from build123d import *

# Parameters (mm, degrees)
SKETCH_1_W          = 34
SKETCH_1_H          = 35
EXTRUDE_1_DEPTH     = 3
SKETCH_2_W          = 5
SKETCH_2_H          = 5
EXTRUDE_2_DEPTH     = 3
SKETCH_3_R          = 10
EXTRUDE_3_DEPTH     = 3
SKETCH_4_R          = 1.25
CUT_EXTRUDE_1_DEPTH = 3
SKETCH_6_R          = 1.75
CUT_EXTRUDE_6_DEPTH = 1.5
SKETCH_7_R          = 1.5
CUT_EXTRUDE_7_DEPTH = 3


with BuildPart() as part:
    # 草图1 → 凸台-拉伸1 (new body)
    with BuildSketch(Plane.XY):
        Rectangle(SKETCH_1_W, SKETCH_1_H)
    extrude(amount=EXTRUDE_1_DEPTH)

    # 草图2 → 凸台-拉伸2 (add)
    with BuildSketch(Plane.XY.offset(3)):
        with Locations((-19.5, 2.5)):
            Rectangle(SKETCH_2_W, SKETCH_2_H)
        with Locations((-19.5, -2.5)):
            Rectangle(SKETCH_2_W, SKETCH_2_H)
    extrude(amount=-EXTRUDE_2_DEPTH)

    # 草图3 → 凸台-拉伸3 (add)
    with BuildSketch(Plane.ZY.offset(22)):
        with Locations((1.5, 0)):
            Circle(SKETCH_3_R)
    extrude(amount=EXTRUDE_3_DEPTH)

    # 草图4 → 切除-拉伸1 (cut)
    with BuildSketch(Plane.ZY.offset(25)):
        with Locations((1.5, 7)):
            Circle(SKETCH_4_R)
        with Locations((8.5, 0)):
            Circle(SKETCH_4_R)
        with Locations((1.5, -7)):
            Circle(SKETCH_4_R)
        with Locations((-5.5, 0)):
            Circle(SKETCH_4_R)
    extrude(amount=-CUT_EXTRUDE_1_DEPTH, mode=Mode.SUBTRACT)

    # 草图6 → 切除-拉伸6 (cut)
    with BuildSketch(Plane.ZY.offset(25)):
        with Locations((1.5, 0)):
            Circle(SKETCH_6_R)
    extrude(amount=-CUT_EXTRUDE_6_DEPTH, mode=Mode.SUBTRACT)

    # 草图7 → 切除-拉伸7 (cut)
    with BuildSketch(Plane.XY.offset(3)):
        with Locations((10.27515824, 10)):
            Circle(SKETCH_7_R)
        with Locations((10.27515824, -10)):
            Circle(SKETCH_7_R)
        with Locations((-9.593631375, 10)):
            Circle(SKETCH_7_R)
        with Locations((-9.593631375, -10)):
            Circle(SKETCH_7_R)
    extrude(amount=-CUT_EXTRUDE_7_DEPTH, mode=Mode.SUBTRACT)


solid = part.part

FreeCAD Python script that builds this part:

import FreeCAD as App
import Part
import Sketcher


def add_polygon(sketch, points):
    """Adds a closed chain of lines whose ends are joined by coincident constraints."""
    first, n = sketch.GeometryCount, len(points)
    for a, b in zip(points, points[1:] + points[:1]):
        sketch.addGeometry(Part.LineSegment(App.Vector(*a, 0), App.Vector(*b, 0)), False)
    for i in range(n):
        sketch.addConstraint(Sketcher.Constraint("Coincident", first + i, 2, first + (i + 1) % n, 1))

doc = App.newDocument("Part")
body = doc.addObject("PartDesign::Body", "Body")

# Sketch on XY plane
sketch1 = doc.addObject("Sketcher::SketchObject", "Sketch")
body.addObject(sketch1)
sketch1.AttachmentSupport = (doc.XY_Plane, [""])
sketch1.MapMode = "FlatFace"
add_polygon(sketch1, [(-17, 18), (-17, -18), (17, -18), (17, 18)])  # lines 0-3
sketch1.addConstraint(Sketcher.Constraint("Vertical", 0))
sketch1.addConstraint(Sketcher.Constraint("Horizontal", 1))
sketch1.addConstraint(Sketcher.Constraint("Vertical", 2))
sketch1.addConstraint(Sketcher.Constraint("Horizontal", 3))
sketch1.addConstraint(Sketcher.Constraint("Symmetric", 0, 2, 2, 2, -1, 1))
sketch1.addConstraint(Sketcher.Constraint("DistanceX", 1, 1, 1, 2, 34.0))
sketch1.addConstraint(Sketcher.Constraint("DistanceY", 0, 2, 0, 1, 35.0))
pad1 = doc.addObject("PartDesign::Pad", "Pad")
body.addObject(pad1)
pad1.Profile = sketch1
pad1.Length = 3

# Sketch on XY plane
sketch2 = doc.addObject("Sketcher::SketchObject", "Sketch001")
body.addObject(sketch2)
sketch2.AttachmentSupport = (doc.XY_Plane, [""])
sketch2.MapMode = "FlatFace"
sketch2.AttachmentOffset = App.Placement(App.Vector(0, 0, 3), App.Rotation())
add_polygon(sketch2, [(-22, 5), (-22, -5), (-17, -5), (-17, 5)])  # lines 0-3
sketch2.addConstraint(Sketcher.Constraint("Vertical", 0))
sketch2.addConstraint(Sketcher.Constraint("Horizontal", 1))
sketch2.addConstraint(Sketcher.Constraint("Vertical", 2))
sketch2.addConstraint(Sketcher.Constraint("Horizontal", 3))
sketch2.addConstraint(Sketcher.Constraint("DistanceX", 1, 1, 1, 2, 5.0))
sketch2.addConstraint(Sketcher.Constraint("DistanceY", 0, 2, 0, 1, 10.0))
sketch2.addConstraint(Sketcher.Constraint("DistanceX", 0, 2, -1, 1, 22.0))
sketch2.addConstraint(Sketcher.Constraint("DistanceY", 0, 2, -1, 1, 5.0))
pad2 = doc.addObject("PartDesign::Pad", "Pad001")
body.addObject(pad2)
pad2.Profile = sketch2
pad2.Length = 3
pad2.Reversed = True

# Sketch on YZ plane
sketch3 = doc.addObject("Sketcher::SketchObject", "Sketch002")
body.addObject(sketch3)
sketch3.AttachmentSupport = (doc.YZ_Plane, [""])
sketch3.MapMode = "FlatFace"
sketch3.AttachmentOffset = App.Placement(App.Vector(0, 0, -22), App.Rotation())
sketch3.addGeometry(Part.Circle(App.Vector(0, 2, 0), App.Vector(0, 0, 1), 10), False)
sketch3.addConstraint(Sketcher.Constraint("PointOnObject", 0, 3, -2))
sketch3.addConstraint(Sketcher.Constraint("Diameter", 0, 20.0))
sketch3.addConstraint(Sketcher.Constraint("DistanceY", -1, 1, 0, 3, 1.5))
pad3 = doc.addObject("PartDesign::Pad", "Pad002")
body.addObject(pad3)
pad3.Profile = sketch3
pad3.Length = 3
pad3.Reversed = True

# Sketch on YZ plane
sketch4 = doc.addObject("Sketcher::SketchObject", "Sketch003")
body.addObject(sketch4)
sketch4.AttachmentSupport = (doc.YZ_Plane, [""])
sketch4.MapMode = "FlatFace"
sketch4.AttachmentOffset = App.Placement(App.Vector(0, 0, -25), App.Rotation())
sketch4.addGeometry(Part.Circle(App.Vector(7, 1.5, 0), App.Vector(0, 0, 1), 1.2), False)
sketch4.addGeometry(Part.Circle(App.Vector(0, 8.5, 0), App.Vector(0, 0, 1), 1.2), False)
sketch4.addGeometry(Part.Circle(App.Vector(-7, 1.5, 0), App.Vector(0, 0, 1), 1.2), False)
sketch4.addGeometry(Part.Circle(App.Vector(0, -5.5, 0), App.Vector(0, 0, 1), 1.2), False)
sketch4.addConstraint(Sketcher.Constraint("Equal", 0, 1))
sketch4.addConstraint(Sketcher.Constraint("Equal", 1, 2))
sketch4.addConstraint(Sketcher.Constraint("Equal", 2, 3))
sketch4.addConstraint(Sketcher.Constraint("Symmetric", 0, 3, 2, 3, -2))
sketch4.addConstraint(Sketcher.Constraint("PointOnObject", 1, 3, -2))
sketch4.addConstraint(Sketcher.Constraint("PointOnObject", 3, 3, -2))
sketch4.addConstraint(Sketcher.Constraint("Diameter", 0, 2.5))
sketch4.addConstraint(Sketcher.Constraint("DistanceX", -1, 1, 0, 3, 7.0))
sketch4.addConstraint(Sketcher.Constraint("DistanceY", 0, 3, 1, 3, 7.0))
sketch4.addConstraint(Sketcher.Constraint("DistanceY", 3, 3, 0, 3, 7.0))
sketch4.addConstraint(Sketcher.Constraint("DistanceY", -1, 1, 0, 3, 1.5))
pocket1 = doc.addObject("PartDesign::Pocket", "Pocket")
body.addObject(pocket1)
pocket1.Profile = sketch4
pocket1.Length = 3
pocket1.Reversed = True

# Sketch on YZ plane
sketch5 = doc.addObject("Sketcher::SketchObject", "Sketch004")
body.addObject(sketch5)
sketch5.AttachmentSupport = (doc.YZ_Plane, [""])
sketch5.MapMode = "FlatFace"
sketch5.AttachmentOffset = App.Placement(App.Vector(0, 0, -25), App.Rotation())
sketch5.addGeometry(Part.Circle(App.Vector(0, 1.5, 0), App.Vector(0, 0, 1), 1.8), False)
sketch5.addConstraint(Sketcher.Constraint("PointOnObject", 0, 3, -2))
sketch5.addConstraint(Sketcher.Constraint("Diameter", 0, 3.5))
sketch5.addConstraint(Sketcher.Constraint("DistanceY", -1, 1, 0, 3, 1.5))
pocket2 = doc.addObject("PartDesign::Pocket", "Pocket001")
body.addObject(pocket2)
pocket2.Profile = sketch5
pocket2.Length = 1.5
pocket2.Reversed = True

# Sketch on XY plane
sketch6 = doc.addObject("Sketcher::SketchObject", "Sketch005")
body.addObject(sketch6)
sketch6.AttachmentSupport = (doc.XY_Plane, [""])
sketch6.MapMode = "FlatFace"
sketch6.AttachmentOffset = App.Placement(App.Vector(0, 0, 3), App.Rotation())
sketch6.addGeometry(Part.Circle(App.Vector(10.3, 10, 0), App.Vector(0, 0, 1), 1.5), False)
sketch6.addGeometry(Part.Circle(App.Vector(10.3, -10, 0), App.Vector(0, 0, 1), 1.5), False)
sketch6.addGeometry(Part.Circle(App.Vector(-9.6, 10, 0), App.Vector(0, 0, 1), 1.5), False)
sketch6.addGeometry(Part.Circle(App.Vector(-9.6, -10, 0), App.Vector(0, 0, 1), 1.5), False)
sketch6.addConstraint(Sketcher.Constraint("Equal", 0, 1))
sketch6.addConstraint(Sketcher.Constraint("Equal", 1, 2))
sketch6.addConstraint(Sketcher.Constraint("Equal", 2, 3))
sketch6.addConstraint(Sketcher.Constraint("Symmetric", 0, 3, 1, 3, -1))
sketch6.addConstraint(Sketcher.Constraint("Symmetric", 2, 3, 3, 3, -1))
sketch6.addConstraint(Sketcher.Constraint("Horizontal", 0, 3, 2, 3))
sketch6.addConstraint(Sketcher.Constraint("Diameter", 0, 3.0))
sketch6.addConstraint(Sketcher.Constraint("DistanceY", -1, 1, 0, 3, 10.0))
sketch6.addConstraint(Sketcher.Constraint("DistanceX", -1, 1, 0, 3, 10.275158))
sketch6.addConstraint(Sketcher.Constraint("DistanceX", 2, 3, -1, 1, 9.593631))
pocket3 = doc.addObject("PartDesign::Pocket", "Pocket002")
body.addObject(pocket3)
pocket3.Profile = sketch6
pocket3.Length = 3

doc.recompute()
